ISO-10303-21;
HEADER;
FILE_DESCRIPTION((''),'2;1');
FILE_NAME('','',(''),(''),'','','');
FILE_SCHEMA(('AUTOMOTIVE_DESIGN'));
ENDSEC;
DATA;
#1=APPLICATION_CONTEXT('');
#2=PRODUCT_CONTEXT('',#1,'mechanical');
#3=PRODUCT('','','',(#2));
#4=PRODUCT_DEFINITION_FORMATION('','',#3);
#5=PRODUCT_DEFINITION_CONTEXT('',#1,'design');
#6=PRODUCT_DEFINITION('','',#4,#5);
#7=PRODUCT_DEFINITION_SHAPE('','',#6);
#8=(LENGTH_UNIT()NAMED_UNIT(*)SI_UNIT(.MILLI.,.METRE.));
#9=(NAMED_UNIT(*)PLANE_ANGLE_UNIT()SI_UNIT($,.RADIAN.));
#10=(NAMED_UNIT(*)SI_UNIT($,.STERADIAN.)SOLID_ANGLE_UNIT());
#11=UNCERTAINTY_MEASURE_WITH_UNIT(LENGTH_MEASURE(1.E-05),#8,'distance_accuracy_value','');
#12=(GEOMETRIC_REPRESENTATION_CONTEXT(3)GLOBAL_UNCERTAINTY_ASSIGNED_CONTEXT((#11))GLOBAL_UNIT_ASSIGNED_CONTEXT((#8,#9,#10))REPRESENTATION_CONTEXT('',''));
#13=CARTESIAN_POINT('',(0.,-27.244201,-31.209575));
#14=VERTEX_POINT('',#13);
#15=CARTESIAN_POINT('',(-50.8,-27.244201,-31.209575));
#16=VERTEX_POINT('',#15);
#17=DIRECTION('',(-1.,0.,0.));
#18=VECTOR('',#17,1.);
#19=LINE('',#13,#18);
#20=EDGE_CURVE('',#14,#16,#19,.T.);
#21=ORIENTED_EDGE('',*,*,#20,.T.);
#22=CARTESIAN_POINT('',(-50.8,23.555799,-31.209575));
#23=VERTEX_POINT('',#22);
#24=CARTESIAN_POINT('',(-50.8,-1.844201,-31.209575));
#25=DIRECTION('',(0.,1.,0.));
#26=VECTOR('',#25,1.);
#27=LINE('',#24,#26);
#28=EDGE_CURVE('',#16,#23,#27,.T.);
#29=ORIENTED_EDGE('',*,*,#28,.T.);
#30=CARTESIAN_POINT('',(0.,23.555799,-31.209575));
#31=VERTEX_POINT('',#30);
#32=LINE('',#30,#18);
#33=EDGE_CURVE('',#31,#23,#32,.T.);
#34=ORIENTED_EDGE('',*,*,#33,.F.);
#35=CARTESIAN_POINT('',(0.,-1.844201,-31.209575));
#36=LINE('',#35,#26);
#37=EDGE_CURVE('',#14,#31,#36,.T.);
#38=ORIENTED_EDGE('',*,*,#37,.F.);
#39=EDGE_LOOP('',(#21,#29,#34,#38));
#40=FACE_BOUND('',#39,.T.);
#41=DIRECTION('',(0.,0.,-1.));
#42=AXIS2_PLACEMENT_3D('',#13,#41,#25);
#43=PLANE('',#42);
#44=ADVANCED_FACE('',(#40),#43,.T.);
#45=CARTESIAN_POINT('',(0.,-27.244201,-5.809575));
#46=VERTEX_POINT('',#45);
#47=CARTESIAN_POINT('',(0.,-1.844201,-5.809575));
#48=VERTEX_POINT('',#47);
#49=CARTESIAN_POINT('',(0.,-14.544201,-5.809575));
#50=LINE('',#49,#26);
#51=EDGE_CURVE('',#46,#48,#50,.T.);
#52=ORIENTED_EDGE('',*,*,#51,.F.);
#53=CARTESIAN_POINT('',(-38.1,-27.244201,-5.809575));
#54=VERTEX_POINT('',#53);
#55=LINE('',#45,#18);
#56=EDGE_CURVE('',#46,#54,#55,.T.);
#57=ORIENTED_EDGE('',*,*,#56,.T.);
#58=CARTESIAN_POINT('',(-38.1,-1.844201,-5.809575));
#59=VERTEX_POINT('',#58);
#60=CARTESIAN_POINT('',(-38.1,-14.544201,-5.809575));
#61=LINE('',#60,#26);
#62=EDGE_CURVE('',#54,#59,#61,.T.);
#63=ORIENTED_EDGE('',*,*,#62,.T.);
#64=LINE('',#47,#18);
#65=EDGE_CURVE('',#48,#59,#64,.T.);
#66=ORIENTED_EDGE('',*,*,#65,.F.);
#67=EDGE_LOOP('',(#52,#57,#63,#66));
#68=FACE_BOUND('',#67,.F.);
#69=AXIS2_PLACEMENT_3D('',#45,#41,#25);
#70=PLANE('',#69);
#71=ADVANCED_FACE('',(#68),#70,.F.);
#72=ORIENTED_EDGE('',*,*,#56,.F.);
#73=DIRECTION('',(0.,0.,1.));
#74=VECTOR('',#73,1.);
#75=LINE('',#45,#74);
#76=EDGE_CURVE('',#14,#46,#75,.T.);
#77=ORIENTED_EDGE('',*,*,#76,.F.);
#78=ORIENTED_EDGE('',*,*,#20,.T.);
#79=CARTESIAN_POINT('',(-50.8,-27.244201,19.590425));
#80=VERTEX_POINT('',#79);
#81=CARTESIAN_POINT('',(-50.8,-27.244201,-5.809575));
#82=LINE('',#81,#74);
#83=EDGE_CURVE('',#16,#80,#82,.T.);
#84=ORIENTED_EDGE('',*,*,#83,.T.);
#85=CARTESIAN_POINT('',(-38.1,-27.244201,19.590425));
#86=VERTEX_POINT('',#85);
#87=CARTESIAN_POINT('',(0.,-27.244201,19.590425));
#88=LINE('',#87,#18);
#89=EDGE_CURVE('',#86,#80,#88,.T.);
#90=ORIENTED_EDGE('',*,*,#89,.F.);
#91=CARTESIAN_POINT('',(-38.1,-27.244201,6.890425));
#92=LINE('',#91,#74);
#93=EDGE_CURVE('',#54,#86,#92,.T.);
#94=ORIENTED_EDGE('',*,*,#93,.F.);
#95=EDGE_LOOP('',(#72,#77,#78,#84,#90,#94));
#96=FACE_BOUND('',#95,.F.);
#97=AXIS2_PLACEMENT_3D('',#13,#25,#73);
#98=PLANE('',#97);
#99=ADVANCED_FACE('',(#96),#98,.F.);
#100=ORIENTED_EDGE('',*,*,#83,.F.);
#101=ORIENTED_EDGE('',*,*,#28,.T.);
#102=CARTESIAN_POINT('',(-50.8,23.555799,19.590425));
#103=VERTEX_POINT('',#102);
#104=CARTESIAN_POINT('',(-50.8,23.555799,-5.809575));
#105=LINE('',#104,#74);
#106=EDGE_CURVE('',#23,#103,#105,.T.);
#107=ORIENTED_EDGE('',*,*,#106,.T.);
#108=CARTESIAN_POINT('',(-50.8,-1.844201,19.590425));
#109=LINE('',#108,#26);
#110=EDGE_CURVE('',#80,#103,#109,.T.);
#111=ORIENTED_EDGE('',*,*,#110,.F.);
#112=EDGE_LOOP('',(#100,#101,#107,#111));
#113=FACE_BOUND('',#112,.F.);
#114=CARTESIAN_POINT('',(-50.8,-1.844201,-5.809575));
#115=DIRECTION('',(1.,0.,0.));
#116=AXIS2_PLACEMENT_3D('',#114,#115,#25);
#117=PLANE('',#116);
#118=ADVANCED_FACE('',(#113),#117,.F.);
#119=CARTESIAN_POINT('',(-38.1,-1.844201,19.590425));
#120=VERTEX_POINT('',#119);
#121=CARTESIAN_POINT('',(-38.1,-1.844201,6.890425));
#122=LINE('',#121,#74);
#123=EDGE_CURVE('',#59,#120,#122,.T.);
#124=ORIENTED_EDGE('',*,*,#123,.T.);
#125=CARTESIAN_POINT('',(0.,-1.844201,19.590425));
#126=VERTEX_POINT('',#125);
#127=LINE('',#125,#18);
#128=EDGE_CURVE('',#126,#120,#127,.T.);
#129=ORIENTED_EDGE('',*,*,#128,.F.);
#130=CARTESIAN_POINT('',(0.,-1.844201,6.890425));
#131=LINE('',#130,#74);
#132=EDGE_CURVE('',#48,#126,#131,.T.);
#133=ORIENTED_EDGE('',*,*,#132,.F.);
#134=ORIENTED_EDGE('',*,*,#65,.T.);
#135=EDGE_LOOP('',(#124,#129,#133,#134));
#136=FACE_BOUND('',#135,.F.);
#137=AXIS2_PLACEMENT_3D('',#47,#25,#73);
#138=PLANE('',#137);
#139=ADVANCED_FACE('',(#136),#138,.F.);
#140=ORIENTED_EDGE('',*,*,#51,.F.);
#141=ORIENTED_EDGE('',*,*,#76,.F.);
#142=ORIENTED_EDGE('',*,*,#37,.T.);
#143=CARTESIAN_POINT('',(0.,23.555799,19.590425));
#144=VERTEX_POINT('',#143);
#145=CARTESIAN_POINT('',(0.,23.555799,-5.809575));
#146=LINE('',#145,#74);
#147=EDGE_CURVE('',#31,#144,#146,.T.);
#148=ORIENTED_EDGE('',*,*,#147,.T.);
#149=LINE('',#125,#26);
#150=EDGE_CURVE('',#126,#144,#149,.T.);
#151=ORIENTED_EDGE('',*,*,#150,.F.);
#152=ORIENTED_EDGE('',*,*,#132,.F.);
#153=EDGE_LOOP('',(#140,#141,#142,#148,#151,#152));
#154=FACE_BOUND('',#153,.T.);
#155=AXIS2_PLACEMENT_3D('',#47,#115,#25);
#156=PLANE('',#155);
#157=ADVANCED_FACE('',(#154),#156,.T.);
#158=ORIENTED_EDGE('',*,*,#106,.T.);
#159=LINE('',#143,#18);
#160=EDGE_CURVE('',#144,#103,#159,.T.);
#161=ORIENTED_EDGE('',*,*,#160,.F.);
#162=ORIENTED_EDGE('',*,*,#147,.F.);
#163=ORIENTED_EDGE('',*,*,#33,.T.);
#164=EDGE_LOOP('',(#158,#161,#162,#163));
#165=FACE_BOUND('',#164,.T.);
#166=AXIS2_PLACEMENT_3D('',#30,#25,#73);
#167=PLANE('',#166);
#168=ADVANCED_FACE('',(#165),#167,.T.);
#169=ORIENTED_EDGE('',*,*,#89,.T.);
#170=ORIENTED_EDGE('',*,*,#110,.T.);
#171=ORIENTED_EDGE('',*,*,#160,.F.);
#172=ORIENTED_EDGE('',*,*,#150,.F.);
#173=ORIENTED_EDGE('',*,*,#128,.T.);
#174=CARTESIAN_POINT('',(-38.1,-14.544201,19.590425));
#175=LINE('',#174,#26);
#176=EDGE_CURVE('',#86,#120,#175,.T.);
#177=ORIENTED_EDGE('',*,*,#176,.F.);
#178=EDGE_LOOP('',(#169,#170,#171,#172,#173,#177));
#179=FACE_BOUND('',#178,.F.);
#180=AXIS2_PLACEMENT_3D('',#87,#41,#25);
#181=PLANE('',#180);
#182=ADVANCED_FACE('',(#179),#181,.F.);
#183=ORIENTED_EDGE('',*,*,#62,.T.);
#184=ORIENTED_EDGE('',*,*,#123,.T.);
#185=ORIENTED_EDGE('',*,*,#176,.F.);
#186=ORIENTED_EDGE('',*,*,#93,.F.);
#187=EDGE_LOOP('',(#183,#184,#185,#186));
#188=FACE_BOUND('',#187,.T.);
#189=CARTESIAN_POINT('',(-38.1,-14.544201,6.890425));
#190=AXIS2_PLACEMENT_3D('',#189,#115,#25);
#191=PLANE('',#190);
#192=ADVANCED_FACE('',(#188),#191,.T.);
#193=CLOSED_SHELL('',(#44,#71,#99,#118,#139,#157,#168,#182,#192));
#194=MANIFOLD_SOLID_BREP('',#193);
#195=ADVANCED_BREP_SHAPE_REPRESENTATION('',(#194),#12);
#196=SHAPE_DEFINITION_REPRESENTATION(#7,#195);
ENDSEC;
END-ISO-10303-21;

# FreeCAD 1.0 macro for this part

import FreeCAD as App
import Part
import Sketcher
from FreeCAD import Vector
Q = App.Units.Quantity


def add_polygon(sketch, points):
    """Adds a closed chain of lines whose ends are joined by coincident constraints."""
    first, n = sketch.GeometryCount, len(points)
    for a, b in zip(points, points[1:] + points[:1]):
        sketch.addGeometry(Part.LineSegment(App.Vector(*a, 0), App.Vector(*b, 0)), False)
    for i in range(n):
        sketch.addConstraint(Sketcher.Constraint("Coincident", first + i, 2, first + (i + 1) % n, 1))

doc = App.newDocument("Part")
params = doc.addObject("Spreadsheet::Sheet", "Params")
for row, (alias, value) in enumerate([
    ("sketch1_width", "2 in"),
    ("pad1_length", "2 in"),
    ("sketch2_width", "1 in"),
    ("pocket1_length", "1.5 in"),
], start=1):
    params.set(f"A{row}", alias)
    params.set(f"B{row}", "=" + value)
    params.setAlias(f"B{row}", alias)

body = doc.addObject("PartDesign::Body", "Body")

# Sketch on YZ plane
sketch1 = doc.addObject("Sketcher::SketchObject", "Sketch")
body.addObject(sketch1)
sketch1.AttachmentSupport = (doc.YZ_Plane, [""])
sketch1.MapMode = "FlatFace"
add_polygon(sketch1, [(-27.244201, 19.590425), (-27.244201, -31.209575), (23.555799, -31.209575), (23.555799, 19.590425)])  # lines 0-3
sketch1.addConstraint(Sketcher.Constraint("Vertical", 0))
sketch1.addConstraint(Sketcher.Constraint("Horizontal", 1))
sketch1.addConstraint(Sketcher.Constraint("Vertical", 2))
sketch1.addConstraint(Sketcher.Constraint("Horizontal", 3))
sketch1.addConstraint(Sketcher.Constraint("Equal", 3, 0))
sketch1.addConstraint(Sketcher.Constraint("DistanceX", 1, 1, 1, 2, Q("2 in")))
sketch1.addConstraint(Sketcher.Constraint("DistanceX", 0, 2, -1, 1, Q("27.244201 mm")))
sketch1.addConstraint(Sketcher.Constraint("DistanceY", 0, 2, -1, 1, Q("31.209575 mm")))
sketch1.setExpression("Constraints[9]", "Params.sketch1_width")
pad1 = doc.addObject("PartDesign::Pad", "Pad")
body.addObject(pad1)
pad1.Profile = sketch1
pad1.setExpression("Length", "Params.pad1_length")
pad1.Reversed = True

# Sketch on YZ plane
sketch2 = doc.addObject("Sketcher::SketchObject", "Sketch001")
body.addObject(sketch2)
sketch2.AttachmentSupport = (doc.YZ_Plane, [""])
sketch2.MapMode = "FlatFace"
add_polygon(sketch2, [(-27.244201, 19.590425), (-27.244201, -5.809575), (-1.844201, -5.809575), (-1.844201, 19.590425)])  # lines 0-3
sketch2.addConstraint(Sketcher.Constraint("Vertical", 0))
sketch2.addConstraint(Sketcher.Constraint("Horizontal", 1))
sketch2.addConstraint(Sketcher.Constraint("Vertical", 2))
sketch2.addConstraint(Sketcher.Constraint("Horizontal", 3))
sketch2.addConstraint(Sketcher.Constraint("Equal", 3, 0))
sketch2.addConstraint(Sketcher.Constraint("DistanceX", 1, 1, 1, 2, Q("1 in")))
sketch2.addConstraint(Sketcher.Constraint("DistanceX", 0, 2, -1, 1, Q("27.244201 mm")))
sketch2.addConstraint(Sketcher.Constraint("DistanceY", 0, 2, -1, 1, Q("5.809575 mm")))
sketch2.setExpression("Constraints[9]", "Params.sketch2_width")
pocket1 = doc.addObject("PartDesign::Pocket", "Pocket")
body.addObject(pocket1)
pocket1.Profile = sketch2
pocket1.setExpression("Length", "Params.pocket1_length")

doc.recompute()
